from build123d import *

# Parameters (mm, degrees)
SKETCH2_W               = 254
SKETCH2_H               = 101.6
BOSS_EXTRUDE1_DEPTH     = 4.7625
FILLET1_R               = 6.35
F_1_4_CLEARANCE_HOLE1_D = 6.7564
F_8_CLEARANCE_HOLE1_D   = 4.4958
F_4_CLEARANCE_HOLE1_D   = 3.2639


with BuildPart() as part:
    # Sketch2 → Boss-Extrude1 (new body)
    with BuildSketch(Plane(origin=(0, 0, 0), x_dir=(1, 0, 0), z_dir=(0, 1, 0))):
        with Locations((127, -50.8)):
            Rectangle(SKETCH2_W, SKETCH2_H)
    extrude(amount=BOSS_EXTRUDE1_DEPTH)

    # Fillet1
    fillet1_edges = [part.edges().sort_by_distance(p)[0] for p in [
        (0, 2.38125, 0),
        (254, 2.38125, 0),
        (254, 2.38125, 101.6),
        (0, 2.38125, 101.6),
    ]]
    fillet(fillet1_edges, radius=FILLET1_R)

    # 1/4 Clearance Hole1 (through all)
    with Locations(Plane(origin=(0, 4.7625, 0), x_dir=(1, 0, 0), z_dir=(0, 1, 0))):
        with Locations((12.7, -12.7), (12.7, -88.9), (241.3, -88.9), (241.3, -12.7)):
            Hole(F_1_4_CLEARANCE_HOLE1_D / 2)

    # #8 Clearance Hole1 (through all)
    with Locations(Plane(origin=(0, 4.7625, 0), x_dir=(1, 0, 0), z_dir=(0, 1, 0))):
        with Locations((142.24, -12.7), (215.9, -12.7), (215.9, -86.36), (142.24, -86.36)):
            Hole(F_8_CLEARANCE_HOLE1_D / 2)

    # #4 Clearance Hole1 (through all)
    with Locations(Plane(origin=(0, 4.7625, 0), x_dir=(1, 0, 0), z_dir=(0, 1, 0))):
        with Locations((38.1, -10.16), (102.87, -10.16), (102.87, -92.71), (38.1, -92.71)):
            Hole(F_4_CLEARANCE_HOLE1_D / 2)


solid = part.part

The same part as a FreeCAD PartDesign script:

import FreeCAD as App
import Part
import Sketcher
Q = App.Units.Quantity


def edges_at(feature, points):
    """Names of the edges that pass closest to the given points."""
    edges = feature.Shape.Edges
    near = lambda p: min(range(len(edges)), key=lambda i: edges[i].distToShape(Part.Vertex(*p))[0])
    return sorted({f"Edge{near(p) + 1}" for p in points})


def add_polygon(sketch, points):
    """Adds a closed chain of lines whose ends are joined by coincident constraints."""
    first, n = sketch.GeometryCount, len(points)
    for a, b in zip(points, points[1:] + points[:1]):
        sketch.addGeometry(Part.LineSegment(App.Vector(*a, 0), App.Vector(*b, 0)), False)
    for i in range(n):
        sketch.addConstraint(Sketcher.Constraint("Coincident", first + i, 2, first + (i + 1) % n, 1))

doc = App.newDocument("Part")
body = doc.addObject("PartDesign::Body", "Body")

# Sketch on XZ plane
sketch1 = doc.addObject("Sketcher::SketchObject", "Sketch")
body.addObject(sketch1)
sketch1.AttachmentSupport = (doc.XZ_Plane, [""])
sketch1.MapMode = "FlatFace"
add_polygon(sketch1, [(0, 0), (0, 101.6), (254, 101.6), (254, 0)])  # lines 0-3
sketch1.addConstraint([
    Sketcher.Constraint("Vertical", 0),
    Sketcher.Constraint("Horizontal", 1),
    Sketcher.Constraint("Vertical", 2),
    Sketcher.Constraint("Horizontal", 3),
    Sketcher.Constraint("Coincident", 3, 2, -1, 1),
    Sketcher.Constraint("DistanceX", 1, 1, 1, 2, Q("10 in")),
    Sketcher.Constraint("DistanceY", 0, 1, 0, 2, Q("4 in")),
])
pad1 = doc.addObject("PartDesign::Pad", "Pad")
body.addObject(pad1)
pad1.Profile = sketch1
pad1.Length = Q("0.1875 in")
pad1.Reversed = True
doc.recompute()

fillet = doc.addObject("PartDesign::Fillet", "Fillet")
body.addObject(fillet)
fillet.Base = (pad1, edges_at(pad1, [
    (0, 2.381, 0),
    (254, 2.381, 0),
    (254, 2.381, 101.6),
    (0, 2.381, 101.6),
]))
fillet.Radius = Q("0.25 in")

# Sketch on XZ plane
sketch2 = doc.addObject("Sketcher::SketchObject", "Sketch001")
body.addObject(sketch2)
sketch2.AttachmentSupport = (doc.XZ_Plane, [""])
sketch2.MapMode = "FlatFace"
sketch2.AttachmentOffset = App.Placement(App.Vector(0, 0, -0.1875 * 25.4), App.Rotation())
sketch2.addGeometry([
    Part.Circle(App.Vector(12.7, 12.7, 0), App.Vector(0, 0, 1), 3.3782),
    Part.Circle(App.Vector(12.7, 88.9, 0), App.Vector(0, 0, 1), 3.3782),
    Part.Circle(App.Vector(241.3, 88.9, 0), App.Vector(0, 0, 1), 3.3782),
    Part.Circle(App.Vector(241.3, 12.7, 0), App.Vector(0, 0, 1), 3.3782),
], False)
sketch2.addConstraint([
    Sketcher.Constraint("Equal", 0, 1),
    Sketcher.Constraint("Equal", 1, 2),
    Sketcher.Constraint("Equal", 2, 3),
    Sketcher.Constraint("Horizontal", 1, 3, 2, 3),
    Sketcher.Constraint("Horizontal", 0, 3, 3, 3),
    Sketcher.Constraint("Vertical", 0, 3, 1, 3),
    Sketcher.Constraint("Vertical", 2, 3, 3, 3),
    Sketcher.Constraint("Diameter", 0, Q("0.266 in")),
    Sketcher.Constraint("DistanceY", 0, 3, 1, 3, Q("3 in")),
    Sketcher.Constraint("DistanceX", 1, 3, 2, 3, Q("9 in")),
    Sketcher.Constraint("DistanceX", -1, 1, 0, 3, Q("0.5 in")),
    Sketcher.Constraint("DistanceY", -1, 1, 0, 3, Q("0.5 in")),
])
doc.recompute()
hole = doc.addObject("PartDesign::Hole", "Hole")
body.addObject(hole)
hole.Profile = sketch2
hole.ThreadType = "None"
hole.Diameter = Q("0.266 in")
hole.DepthType = "ThroughAll"
hole.Reversed = True

# Sketch on XZ plane
sketch3 = doc.addObject("Sketcher::SketchObject", "Sketch002")
body.addObject(sketch3)
sketch3.AttachmentSupport = (doc.XZ_Plane, [""])
sketch3.MapMode = "FlatFace"
sketch3.AttachmentOffset = App.Placement(App.Vector(0, 0, -0.1875 * 25.4), App.Rotation())
sketch3.addGeometry([
    Part.Circle(App.Vector(142.24, 12.7, 0), App.Vector(0, 0, 1), 2.2479),
    Part.Circle(App.Vector(215.9, 12.7, 0), App.Vector(0, 0, 1), 2.2479),
    Part.Circle(App.Vector(215.9, 86.36, 0), App.Vector(0, 0, 1), 2.2479),
    Part.Circle(App.Vector(142.24, 86.36, 0), App.Vector(0, 0, 1), 2.2479),
], False)
sketch3.addConstraint([
    Sketcher.Constraint("Equal", 0, 1),
    Sketcher.Constraint("Equal", 1, 2),
    Sketcher.Constraint("Equal", 2, 3),
    Sketcher.Constraint("Horizontal", 0, 3, 1, 3),
    Sketcher.Constraint("Horizontal", 2, 3, 3, 3),
    Sketcher.Constraint("Vertical", 1, 3, 2, 3),
    Sketcher.Constraint("Vertical", 0, 3, 3, 3),
    Sketcher.Constraint("Diameter", 0, Q("0.177 in")),
    Sketcher.Constraint("DistanceX", -1, 1, 0, 3, Q("5.6 in")),
    Sketcher.Constraint("DistanceY", -1, 1, 0, 3, Q("0.5 in")),
    Sketcher.Constraint("DistanceX", -1, 1, 1, 3, Q("8.5 in")),
    Sketcher.Constraint("DistanceY", -1, 1, 2, 3, Q("3.4 in")),
])
doc.recompute()
hole2 = doc.addObject("PartDesign::Hole", "Hole001")
body.addObject(hole2)
hole2.Profile = sketch3
hole2.ThreadType = "None"
hole2.Diameter = Q("0.177 in")
hole2.DepthType = "ThroughAll"
hole2.Reversed = True

# Sketch on XZ plane
sketch4 = doc.addObject("Sketcher::SketchObject", "Sketch003")
body.addObject(sketch4)
sketch4.AttachmentSupport = (doc.XZ_Plane, [""])
sketch4.MapMode = "FlatFace"
sketch4.AttachmentOffset = App.Placement(App.Vector(0, 0, -0.1875 * 25.4), App.Rotation())
sketch4.addGeometry([
    Part.Circle(App.Vector(38.1, 10.16, 0), App.Vector(0, 0, 1), 1.63195),
    Part.Circle(App.Vector(102.87, 10.16, 0), App.Vector(0, 0, 1), 1.63195),
    Part.Circle(App.Vector(102.87, 92.71, 0), App.Vector(0, 0, 1), 1.63195),
    Part.Circle(App.Vector(38.1, 92.71, 0), App.Vector(0, 0, 1), 1.63195),
], False)
sketch4.addConstraint([
    Sketcher.Constraint("Equal", 0, 1),
    Sketcher.Constraint("Equal", 1, 2),
    Sketcher.Constraint("Equal", 2, 3),
    Sketcher.Constraint("Horizontal", 0, 3, 1, 3),
    Sketcher.Constraint("Horizontal", 2, 3, 3, 3),
    Sketcher.Constraint("Vertical", 1, 3, 2, 3),
    Sketcher.Constraint("Vertical", 0, 3, 3, 3),
    Sketcher.Constraint("Diameter", 0, Q("0.1285 in")),
    Sketcher.Constraint("DistanceX", -1, 1, 0, 3, Q("1.5 in")),
    Sketcher.Constraint("DistanceY", -1, 1, 0, 3, Q("0.4 in")),
    Sketcher.Constraint("DistanceX", -1, 1, 1, 3, Q("4.05 in")),
    Sketcher.Constraint("DistanceY", -1, 1, 2, 3, Q("3.65 in")),
])
doc.recompute()
hole3 = doc.addObject("PartDesign::Hole", "Hole002")
body.addObject(hole3)
hole3.Profile = sketch4
hole3.ThreadType = "None"
hole3.Diameter = Q("0.1285 in")
hole3.DepthType = "ThroughAll"
hole3.Reversed = True

doc.recompute()
